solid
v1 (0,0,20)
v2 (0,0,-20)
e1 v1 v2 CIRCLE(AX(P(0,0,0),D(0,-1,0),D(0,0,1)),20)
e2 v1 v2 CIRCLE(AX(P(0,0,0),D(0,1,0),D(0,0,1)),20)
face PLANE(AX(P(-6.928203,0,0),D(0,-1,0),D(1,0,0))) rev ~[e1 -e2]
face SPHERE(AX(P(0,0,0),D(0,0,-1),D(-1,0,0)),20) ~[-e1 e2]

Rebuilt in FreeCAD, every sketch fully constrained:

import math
import FreeCAD as App
import Part
import Sketcher
Q = App.Units.Quantity

doc = App.newDocument("Part")
body = doc.addObject("PartDesign::Body", "Body")

# Sketch on XZ plane
sketch1 = body.newObject("Sketcher::SketchObject", "Sketch")
sketch1.AttachmentSupport = (doc.getObject("XZ_Plane"), [""])
sketch1.MapMode = "FlatFace"
sketch1.addGeometry(Part.LineSegment(App.Vector(-19, -0.75, 0), App.Vector(-0.75, -0.75, 0)), False)
sketch1.addGeometry(Part.LineSegment(App.Vector(-0.75, -0.75, 0), App.Vector(-0.75, -19, 0)), False)
sketch1.addGeometry(Part.LineSegment(App.Vector(-0.75, -19, 0), App.Vector(0.75, -19, 0)), False)
sketch1.addGeometry(Part.LineSegment(App.Vector(0.75, -19, 0), App.Vector(0.75, -0.75, 0)), False)
sketch1.addGeometry(Part.LineSegment(App.Vector(0.75, -0.75, 0), App.Vector(19, -0.75, 0)), False)
sketch1.addGeometry(Part.LineSegment(App.Vector(19, -0.75, 0), App.Vector(19, 0.75, 0)), False)
sketch1.addGeometry(Part.LineSegment(App.Vector(19, 0.75, 0), App.Vector(0.75, 0.75, 0)), False)
sketch1.addGeometry(Part.LineSegment(App.Vector(0.75, 0.75, 0), App.Vector(0.75, 19, 0)), False)
sketch1.addGeometry(Part.LineSegment(App.Vector(0.75, 19, 0), App.Vector(-0.75, 19, 0)), False)
sketch1.addGeometry(Part.LineSegment(App.Vector(-0.75, 19, 0), App.Vector(-0.75, 0.75, 0)), False)
sketch1.addGeometry(Part.LineSegment(App.Vector(-0.75, 0.75, 0), App.Vector(-19, 0.75, 0)), False)
sketch1.addGeometry(Part.LineSegment(App.Vector(-19, 0.75, 0), App.Vector(-19, -0.75, 0)), False)
sketch1.addConstraint(Sketcher.Constraint("Coincident", 0, 2, 1, 1))
sketch1.addConstraint(Sketcher.Constraint("Coincident", 1, 2, 2, 1))
sketch1.addConstraint(Sketcher.Constraint("Coincident", 2, 2, 3, 1))
sketch1.addConstraint(Sketcher.Constraint("Coincident", 3, 2, 4, 1))
sketch1.addConstraint(Sketcher.Constraint("Coincident", 4, 2, 5, 1))
sketch1.addConstraint(Sketcher.Constraint("Coincident", 5, 2, 6, 1))
sketch1.addConstraint(Sketcher.Constraint("Coincident", 6, 2, 7, 1))
sketch1.addConstraint(Sketcher.Constraint("Coincident", 7, 2, 8, 1))
sketch1.addConstraint(Sketcher.Constraint("Coincident", 8, 2, 9, 1))
sketch1.addConstraint(Sketcher.Constraint("Coincident", 9, 2, 10, 1))
sketch1.addConstraint(Sketcher.Constraint("Coincident", 10, 2, 11, 1))
sketch1.addConstraint(Sketcher.Constraint("Coincident", 11, 2, 0, 1))
sketch1.addConstraint(Sketcher.Constraint("Horizontal", 0))
sketch1.addConstraint(Sketcher.Constraint("Vertical", 1))
sketch1.addConstraint(Sketcher.Constraint("Horizontal", 2))
sketch1.addConstraint(Sketcher.Constraint("Vertical", 3))
sketch1.addConstraint(Sketcher.Constraint("Horizontal", 4))
sketch1.addConstraint(Sketcher.Constraint("Vertical", 5))
sketch1.addConstraint(Sketcher.Constraint("Horizontal", 6))
sketch1.addConstraint(Sketcher.Constraint("Vertical", 7))
sketch1.addConstraint(Sketcher.Constraint("Horizontal", 8))
sketch1.addConstraint(Sketcher.Constraint("Vertical", 9))
sketch1.addConstraint(Sketcher.Constraint("Horizontal", 10))
sketch1.addConstraint(Sketcher.Constraint("Vertical", 11))
sketch1.addConstraint(Sketcher.Constraint("Symmetric", 0, 2, 6, 2, -1, 1))
sketch1.addConstraint(Sketcher.Constraint("Symmetric", 2, 2, 8, 2, -1, 1))
sketch1.addConstraint(Sketcher.Constraint("Symmetric", 4, 2, 10, 2, -1, 1))
sketch1.addConstraint(Sketcher.Constraint("Symmetric", 0, 2, 3, 2, -2))
sketch1.addConstraint(Sketcher.Constraint("Equal", 10, 1))
sketch1.addConstraint(Sketcher.Constraint("Equal", 8, 5))
sketch1.addConstraint(Sketcher.Constraint("DistanceX", 2, 1, 2, 2, Q("1.5 mm")))
sketch1.addConstraint(Sketcher.Constraint("DistanceY", 1, 2, -1, 1, Q("19 mm")))
pad1 = body.newObject("PartDesign::Pad", "Pad")
pad1.Profile = sketch1
pad1.Length = 24.5
body2 = doc.addObject("PartDesign::Body", "Body001")

# Sketch on XZ plane
sketch2 = body2.newObject("Sketcher::SketchObject", "Sketch001")
sketch2.AttachmentSupport = (doc.getObject("XZ_Plane001"), [""])
sketch2.MapMode = "FlatFace"
sketch2.addGeometry(Part.LineSegment(App.Vector(0, -20, 0), App.Vector(0, 20, 0)), False)
sketch2.addGeometry(Part.ArcOfCircle(Part.Circle(App.Vector(0, 0, 0), App.Vector(0, 0, 1), 20), math.radians(90), math.radians(270)), False)
sketch2.addConstraint(Sketcher.Constraint("Coincident", 0, 1, 1, 2))
sketch2.addConstraint(Sketcher.Constraint("Coincident", 1, 1, 0, 2))
sketch2.addConstraint(Sketcher.Constraint("Vertical", 0))
sketch2.addConstraint(Sketcher.Constraint("Coincident", 1, 3, -1, 1))
sketch2.addConstraint(Sketcher.Constraint("PointOnObject", 0, 1, -2))
sketch2.addConstraint(Sketcher.Constraint("Radius", 1, Q("20 mm")))
revolution = body2.newObject("PartDesign::Revolution", "Revolution")
revolution.Profile = sketch2
revolution.ReferenceAxis = (sketch2, ["V_Axis"])
revolution.Angle = 180
doc.recompute()

body3 = doc.addObject("PartDesign::Body", "Body002")
body3.BaseFeature = body2
boolean = body.newObject("PartDesign::Boolean", "Boolean")
boolean.Type = "Cut"
boolean.addObjects([body3])
doc.recompute()

doc.recompute()
